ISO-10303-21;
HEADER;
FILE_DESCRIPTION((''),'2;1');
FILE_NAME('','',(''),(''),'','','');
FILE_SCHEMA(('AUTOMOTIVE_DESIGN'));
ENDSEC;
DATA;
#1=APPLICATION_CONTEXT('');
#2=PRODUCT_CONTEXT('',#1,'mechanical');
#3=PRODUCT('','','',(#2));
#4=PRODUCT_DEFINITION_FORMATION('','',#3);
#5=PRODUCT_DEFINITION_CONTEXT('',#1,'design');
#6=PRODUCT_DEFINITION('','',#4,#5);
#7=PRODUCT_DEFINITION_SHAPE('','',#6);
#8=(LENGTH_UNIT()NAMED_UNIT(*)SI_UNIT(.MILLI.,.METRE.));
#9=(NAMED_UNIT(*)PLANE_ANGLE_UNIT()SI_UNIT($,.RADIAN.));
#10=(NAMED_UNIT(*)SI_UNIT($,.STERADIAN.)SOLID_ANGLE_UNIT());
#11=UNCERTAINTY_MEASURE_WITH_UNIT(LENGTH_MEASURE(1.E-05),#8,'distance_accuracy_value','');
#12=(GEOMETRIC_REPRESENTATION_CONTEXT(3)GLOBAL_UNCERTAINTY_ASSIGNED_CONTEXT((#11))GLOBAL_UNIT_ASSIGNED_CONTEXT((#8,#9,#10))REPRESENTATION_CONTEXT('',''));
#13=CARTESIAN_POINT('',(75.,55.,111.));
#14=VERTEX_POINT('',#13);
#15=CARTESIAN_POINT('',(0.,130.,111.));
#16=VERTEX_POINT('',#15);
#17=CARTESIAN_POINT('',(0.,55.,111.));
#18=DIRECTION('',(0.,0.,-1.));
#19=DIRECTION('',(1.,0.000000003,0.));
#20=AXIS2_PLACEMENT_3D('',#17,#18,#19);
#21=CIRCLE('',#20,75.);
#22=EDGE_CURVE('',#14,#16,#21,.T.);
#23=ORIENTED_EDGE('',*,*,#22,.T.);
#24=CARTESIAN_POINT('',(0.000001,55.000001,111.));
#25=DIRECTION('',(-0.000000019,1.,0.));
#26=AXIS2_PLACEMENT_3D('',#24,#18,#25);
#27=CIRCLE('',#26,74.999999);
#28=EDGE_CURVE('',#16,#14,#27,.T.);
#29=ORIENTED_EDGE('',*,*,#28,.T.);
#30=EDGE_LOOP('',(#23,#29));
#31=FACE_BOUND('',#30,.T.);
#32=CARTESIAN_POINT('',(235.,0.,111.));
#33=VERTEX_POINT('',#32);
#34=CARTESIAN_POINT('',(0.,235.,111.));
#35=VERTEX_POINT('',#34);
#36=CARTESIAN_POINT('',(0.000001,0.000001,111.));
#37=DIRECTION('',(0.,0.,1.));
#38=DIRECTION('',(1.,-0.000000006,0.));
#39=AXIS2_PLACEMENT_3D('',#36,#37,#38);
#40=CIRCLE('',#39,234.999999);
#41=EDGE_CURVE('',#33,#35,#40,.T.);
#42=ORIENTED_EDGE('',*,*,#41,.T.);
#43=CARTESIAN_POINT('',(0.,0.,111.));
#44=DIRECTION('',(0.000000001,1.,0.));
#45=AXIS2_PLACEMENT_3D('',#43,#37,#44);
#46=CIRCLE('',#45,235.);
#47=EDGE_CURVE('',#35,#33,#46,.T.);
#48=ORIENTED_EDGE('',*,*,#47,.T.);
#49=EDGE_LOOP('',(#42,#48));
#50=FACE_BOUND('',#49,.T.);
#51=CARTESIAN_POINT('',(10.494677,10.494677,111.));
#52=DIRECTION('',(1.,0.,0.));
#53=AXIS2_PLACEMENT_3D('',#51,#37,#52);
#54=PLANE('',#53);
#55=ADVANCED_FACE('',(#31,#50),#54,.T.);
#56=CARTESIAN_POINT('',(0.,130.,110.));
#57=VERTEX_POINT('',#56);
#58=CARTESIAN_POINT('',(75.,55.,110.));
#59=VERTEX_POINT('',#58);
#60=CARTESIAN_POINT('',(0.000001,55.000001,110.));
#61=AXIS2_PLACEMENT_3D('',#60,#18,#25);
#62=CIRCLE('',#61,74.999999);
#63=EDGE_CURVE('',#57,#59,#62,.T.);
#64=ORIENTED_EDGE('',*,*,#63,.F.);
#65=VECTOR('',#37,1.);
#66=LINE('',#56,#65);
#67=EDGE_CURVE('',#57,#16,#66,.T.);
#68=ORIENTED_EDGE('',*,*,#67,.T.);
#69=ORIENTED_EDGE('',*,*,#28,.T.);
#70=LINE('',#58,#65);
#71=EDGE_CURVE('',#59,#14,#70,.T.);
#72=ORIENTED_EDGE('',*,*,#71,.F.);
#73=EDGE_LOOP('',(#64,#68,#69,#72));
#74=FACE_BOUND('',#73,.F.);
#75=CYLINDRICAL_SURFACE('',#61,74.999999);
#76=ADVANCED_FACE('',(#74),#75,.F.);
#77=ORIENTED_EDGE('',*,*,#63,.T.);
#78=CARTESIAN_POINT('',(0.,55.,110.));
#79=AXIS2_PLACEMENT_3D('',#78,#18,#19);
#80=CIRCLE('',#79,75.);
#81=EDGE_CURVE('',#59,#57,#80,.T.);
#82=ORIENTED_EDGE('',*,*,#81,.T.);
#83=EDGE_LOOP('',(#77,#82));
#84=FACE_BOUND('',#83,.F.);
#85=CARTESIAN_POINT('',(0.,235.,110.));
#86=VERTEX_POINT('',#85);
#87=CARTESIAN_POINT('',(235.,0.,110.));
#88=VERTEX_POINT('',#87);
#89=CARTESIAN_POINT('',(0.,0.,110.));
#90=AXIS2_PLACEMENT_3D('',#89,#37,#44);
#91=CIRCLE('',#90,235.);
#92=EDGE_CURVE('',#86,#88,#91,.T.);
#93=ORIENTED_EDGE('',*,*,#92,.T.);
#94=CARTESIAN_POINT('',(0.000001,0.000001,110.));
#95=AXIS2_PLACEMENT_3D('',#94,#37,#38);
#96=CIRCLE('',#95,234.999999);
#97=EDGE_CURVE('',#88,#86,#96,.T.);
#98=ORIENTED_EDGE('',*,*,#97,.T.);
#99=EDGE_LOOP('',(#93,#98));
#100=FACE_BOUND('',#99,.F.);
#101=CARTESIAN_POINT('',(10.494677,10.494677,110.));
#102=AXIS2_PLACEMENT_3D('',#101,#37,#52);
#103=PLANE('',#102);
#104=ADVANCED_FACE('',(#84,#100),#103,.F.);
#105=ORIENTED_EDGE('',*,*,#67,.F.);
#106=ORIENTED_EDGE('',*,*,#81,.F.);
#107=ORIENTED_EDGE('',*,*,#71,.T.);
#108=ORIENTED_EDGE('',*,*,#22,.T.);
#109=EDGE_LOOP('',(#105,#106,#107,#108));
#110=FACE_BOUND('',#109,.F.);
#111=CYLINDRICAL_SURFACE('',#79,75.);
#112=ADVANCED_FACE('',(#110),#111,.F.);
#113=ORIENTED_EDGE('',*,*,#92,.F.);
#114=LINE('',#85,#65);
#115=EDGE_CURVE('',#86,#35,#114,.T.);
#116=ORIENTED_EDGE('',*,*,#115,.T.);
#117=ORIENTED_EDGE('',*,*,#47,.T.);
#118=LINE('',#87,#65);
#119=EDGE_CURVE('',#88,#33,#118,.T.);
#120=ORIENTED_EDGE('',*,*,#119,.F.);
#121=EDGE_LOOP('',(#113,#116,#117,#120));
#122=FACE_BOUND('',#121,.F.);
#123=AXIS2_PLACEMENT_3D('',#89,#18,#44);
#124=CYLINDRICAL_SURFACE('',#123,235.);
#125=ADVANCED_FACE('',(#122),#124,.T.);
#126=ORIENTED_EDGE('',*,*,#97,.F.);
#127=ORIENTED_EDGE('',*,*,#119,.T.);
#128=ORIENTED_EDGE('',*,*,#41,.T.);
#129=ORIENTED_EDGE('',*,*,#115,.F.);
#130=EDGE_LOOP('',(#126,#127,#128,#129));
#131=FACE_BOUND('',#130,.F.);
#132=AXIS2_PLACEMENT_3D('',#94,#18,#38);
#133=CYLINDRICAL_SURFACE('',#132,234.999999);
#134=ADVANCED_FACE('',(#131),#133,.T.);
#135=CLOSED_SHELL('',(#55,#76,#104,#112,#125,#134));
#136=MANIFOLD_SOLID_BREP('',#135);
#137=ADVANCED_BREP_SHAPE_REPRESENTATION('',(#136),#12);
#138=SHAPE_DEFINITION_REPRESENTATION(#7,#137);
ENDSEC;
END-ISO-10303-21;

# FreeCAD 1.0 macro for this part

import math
import FreeCAD as App
import Part
import Sketcher

V = App.Vector


def faces_at(feature, points):
    """Names of the faces that lie closest to the given points."""
    faces = feature.Shape.Faces
    near = lambda p: min(range(len(faces)), key=lambda i: faces[i].distToShape(Part.Vertex(*p))[0])
    return sorted({f"Face{near(p) + 1}" for p in points})

doc = App.newDocument("Part")
body = doc.addObject("PartDesign::Body", "Body")

# Sketch on XZ plane
sketch1 = body.newObject("Sketcher::SketchObject", "Sketch")
sketch1.AttachmentSupport = (doc.getObject("XZ_Plane"), [""])
sketch1.MapMode = "FlatFace"
sketch1.addGeometry([
    Part.LineSegment(V(-235, 110, 0), V(-235, 0, 0)),
    Part.LineSegment(V(-235, 0, 0), V(0, 0, 0)),
    Part.LineSegment(V(0, 0, 0), V(0, 110, 0)),
    Part.LineSegment(V(0, 110, 0), V(-235, 110, 0)),
], False)
sketch1.addConstraint([
    Sketcher.Constraint("Coincident", 0, 2, 1, 1),
    Sketcher.Constraint("Coincident", 1, 2, 2, 1),
    Sketcher.Constraint("Coincident", 2, 2, 3, 1),
    Sketcher.Constraint("Coincident", 3, 2, 0, 1),
    Sketcher.Constraint("Vertical", 0),
    Sketcher.Constraint("Horizontal", 1),
    Sketcher.Constraint("Vertical", 2),
    Sketcher.Constraint("Horizontal", 3),
    Sketcher.Constraint("Coincident", 1, 2, -1, 1),
    Sketcher.Constraint("DistanceX", 1, 1, 1, 2, 235.0),
    Sketcher.Constraint("DistanceY", 0, 2, 0, 1, 110.0),
])
revolution = body.newObject("PartDesign::Revolution", "Revolution")
revolution.Profile = sketch1
revolution.ReferenceAxis = (sketch1, ["V_Axis"])
revolution.Angle = 360
doc.recompute()

thickness = body.newObject("PartDesign::Thickness", "Thickness")
thickness.Base = (revolution, faces_at(revolution, [(0, 0, 0)]))
thickness.Value = 1
thickness.Reversed = True
thickness.Join = "Arc"
body2 = doc.addObject("PartDesign::Body", "Body001")

# Sketch on XY plane
sketch2 = body2.newObject("Sketcher::SketchObject", "Sketch001")
sketch2.AttachmentSupport = (doc.getObject("XY_Plane001"), [""])
sketch2.MapMode = "FlatFace"
sketch2.AttachmentOffset = App.Placement(V(0, 0, 110), App.Rotation())
sketch2.addGeometry([
    Part.ArcOfCircle(Part.Circle(V(0, 0, 0), V(0, 0, 1), 235), math.radians(0), math.radians(90)),
    Part.ArcOfCircle(Part.Circle(V(0, 0, 0), V(0, 0, 1), 235), math.radians(90), math.radians(360)),
    Part.ArcOfCircle(Part.Circle(V(0, 55, 0), V(0, 0, 1), 75), math.radians(0), math.radians(90)),
    Part.ArcOfCircle(Part.Circle(V(0, 55, 0), V(0, 0, 1), 75), math.radians(90), math.radians(360)),
], False)
sketch2.addConstraint([
    Sketcher.Constraint("Tangent", 0, 1, 1, 2),
    Sketcher.Constraint("Coincident", 1, 1, 0, 2),
    Sketcher.Constraint("Tangent", 2, 1, 3, 2),
    Sketcher.Constraint("Coincident", 3, 1, 2, 2),
    Sketcher.Constraint("Coincident", 0, 3, -1, 1),
    Sketcher.Constraint("PointOnObject", 2, 3, -2),
    Sketcher.Constraint("PointOnObject", 0, 1, -1),
    Sketcher.Constraint("PointOnObject", 1, 1, -2),
    Sketcher.Constraint("PointOnObject", 3, 1, -2),
    Sketcher.Constraint("Horizontal", 3, 3, 2, 1),
    Sketcher.Constraint("Radius", 0, 234.999999),
    Sketcher.Constraint("Radius", 2, 74.999999),
    Sketcher.Constraint("DistanceY", -1, 1, 2, 3, 55.000001),
])
pad1 = body2.newObject("PartDesign::Pad", "Pad")
pad1.Profile = sketch2
pad1.Length = 1
body.Visibility = False

doc.recompute()
